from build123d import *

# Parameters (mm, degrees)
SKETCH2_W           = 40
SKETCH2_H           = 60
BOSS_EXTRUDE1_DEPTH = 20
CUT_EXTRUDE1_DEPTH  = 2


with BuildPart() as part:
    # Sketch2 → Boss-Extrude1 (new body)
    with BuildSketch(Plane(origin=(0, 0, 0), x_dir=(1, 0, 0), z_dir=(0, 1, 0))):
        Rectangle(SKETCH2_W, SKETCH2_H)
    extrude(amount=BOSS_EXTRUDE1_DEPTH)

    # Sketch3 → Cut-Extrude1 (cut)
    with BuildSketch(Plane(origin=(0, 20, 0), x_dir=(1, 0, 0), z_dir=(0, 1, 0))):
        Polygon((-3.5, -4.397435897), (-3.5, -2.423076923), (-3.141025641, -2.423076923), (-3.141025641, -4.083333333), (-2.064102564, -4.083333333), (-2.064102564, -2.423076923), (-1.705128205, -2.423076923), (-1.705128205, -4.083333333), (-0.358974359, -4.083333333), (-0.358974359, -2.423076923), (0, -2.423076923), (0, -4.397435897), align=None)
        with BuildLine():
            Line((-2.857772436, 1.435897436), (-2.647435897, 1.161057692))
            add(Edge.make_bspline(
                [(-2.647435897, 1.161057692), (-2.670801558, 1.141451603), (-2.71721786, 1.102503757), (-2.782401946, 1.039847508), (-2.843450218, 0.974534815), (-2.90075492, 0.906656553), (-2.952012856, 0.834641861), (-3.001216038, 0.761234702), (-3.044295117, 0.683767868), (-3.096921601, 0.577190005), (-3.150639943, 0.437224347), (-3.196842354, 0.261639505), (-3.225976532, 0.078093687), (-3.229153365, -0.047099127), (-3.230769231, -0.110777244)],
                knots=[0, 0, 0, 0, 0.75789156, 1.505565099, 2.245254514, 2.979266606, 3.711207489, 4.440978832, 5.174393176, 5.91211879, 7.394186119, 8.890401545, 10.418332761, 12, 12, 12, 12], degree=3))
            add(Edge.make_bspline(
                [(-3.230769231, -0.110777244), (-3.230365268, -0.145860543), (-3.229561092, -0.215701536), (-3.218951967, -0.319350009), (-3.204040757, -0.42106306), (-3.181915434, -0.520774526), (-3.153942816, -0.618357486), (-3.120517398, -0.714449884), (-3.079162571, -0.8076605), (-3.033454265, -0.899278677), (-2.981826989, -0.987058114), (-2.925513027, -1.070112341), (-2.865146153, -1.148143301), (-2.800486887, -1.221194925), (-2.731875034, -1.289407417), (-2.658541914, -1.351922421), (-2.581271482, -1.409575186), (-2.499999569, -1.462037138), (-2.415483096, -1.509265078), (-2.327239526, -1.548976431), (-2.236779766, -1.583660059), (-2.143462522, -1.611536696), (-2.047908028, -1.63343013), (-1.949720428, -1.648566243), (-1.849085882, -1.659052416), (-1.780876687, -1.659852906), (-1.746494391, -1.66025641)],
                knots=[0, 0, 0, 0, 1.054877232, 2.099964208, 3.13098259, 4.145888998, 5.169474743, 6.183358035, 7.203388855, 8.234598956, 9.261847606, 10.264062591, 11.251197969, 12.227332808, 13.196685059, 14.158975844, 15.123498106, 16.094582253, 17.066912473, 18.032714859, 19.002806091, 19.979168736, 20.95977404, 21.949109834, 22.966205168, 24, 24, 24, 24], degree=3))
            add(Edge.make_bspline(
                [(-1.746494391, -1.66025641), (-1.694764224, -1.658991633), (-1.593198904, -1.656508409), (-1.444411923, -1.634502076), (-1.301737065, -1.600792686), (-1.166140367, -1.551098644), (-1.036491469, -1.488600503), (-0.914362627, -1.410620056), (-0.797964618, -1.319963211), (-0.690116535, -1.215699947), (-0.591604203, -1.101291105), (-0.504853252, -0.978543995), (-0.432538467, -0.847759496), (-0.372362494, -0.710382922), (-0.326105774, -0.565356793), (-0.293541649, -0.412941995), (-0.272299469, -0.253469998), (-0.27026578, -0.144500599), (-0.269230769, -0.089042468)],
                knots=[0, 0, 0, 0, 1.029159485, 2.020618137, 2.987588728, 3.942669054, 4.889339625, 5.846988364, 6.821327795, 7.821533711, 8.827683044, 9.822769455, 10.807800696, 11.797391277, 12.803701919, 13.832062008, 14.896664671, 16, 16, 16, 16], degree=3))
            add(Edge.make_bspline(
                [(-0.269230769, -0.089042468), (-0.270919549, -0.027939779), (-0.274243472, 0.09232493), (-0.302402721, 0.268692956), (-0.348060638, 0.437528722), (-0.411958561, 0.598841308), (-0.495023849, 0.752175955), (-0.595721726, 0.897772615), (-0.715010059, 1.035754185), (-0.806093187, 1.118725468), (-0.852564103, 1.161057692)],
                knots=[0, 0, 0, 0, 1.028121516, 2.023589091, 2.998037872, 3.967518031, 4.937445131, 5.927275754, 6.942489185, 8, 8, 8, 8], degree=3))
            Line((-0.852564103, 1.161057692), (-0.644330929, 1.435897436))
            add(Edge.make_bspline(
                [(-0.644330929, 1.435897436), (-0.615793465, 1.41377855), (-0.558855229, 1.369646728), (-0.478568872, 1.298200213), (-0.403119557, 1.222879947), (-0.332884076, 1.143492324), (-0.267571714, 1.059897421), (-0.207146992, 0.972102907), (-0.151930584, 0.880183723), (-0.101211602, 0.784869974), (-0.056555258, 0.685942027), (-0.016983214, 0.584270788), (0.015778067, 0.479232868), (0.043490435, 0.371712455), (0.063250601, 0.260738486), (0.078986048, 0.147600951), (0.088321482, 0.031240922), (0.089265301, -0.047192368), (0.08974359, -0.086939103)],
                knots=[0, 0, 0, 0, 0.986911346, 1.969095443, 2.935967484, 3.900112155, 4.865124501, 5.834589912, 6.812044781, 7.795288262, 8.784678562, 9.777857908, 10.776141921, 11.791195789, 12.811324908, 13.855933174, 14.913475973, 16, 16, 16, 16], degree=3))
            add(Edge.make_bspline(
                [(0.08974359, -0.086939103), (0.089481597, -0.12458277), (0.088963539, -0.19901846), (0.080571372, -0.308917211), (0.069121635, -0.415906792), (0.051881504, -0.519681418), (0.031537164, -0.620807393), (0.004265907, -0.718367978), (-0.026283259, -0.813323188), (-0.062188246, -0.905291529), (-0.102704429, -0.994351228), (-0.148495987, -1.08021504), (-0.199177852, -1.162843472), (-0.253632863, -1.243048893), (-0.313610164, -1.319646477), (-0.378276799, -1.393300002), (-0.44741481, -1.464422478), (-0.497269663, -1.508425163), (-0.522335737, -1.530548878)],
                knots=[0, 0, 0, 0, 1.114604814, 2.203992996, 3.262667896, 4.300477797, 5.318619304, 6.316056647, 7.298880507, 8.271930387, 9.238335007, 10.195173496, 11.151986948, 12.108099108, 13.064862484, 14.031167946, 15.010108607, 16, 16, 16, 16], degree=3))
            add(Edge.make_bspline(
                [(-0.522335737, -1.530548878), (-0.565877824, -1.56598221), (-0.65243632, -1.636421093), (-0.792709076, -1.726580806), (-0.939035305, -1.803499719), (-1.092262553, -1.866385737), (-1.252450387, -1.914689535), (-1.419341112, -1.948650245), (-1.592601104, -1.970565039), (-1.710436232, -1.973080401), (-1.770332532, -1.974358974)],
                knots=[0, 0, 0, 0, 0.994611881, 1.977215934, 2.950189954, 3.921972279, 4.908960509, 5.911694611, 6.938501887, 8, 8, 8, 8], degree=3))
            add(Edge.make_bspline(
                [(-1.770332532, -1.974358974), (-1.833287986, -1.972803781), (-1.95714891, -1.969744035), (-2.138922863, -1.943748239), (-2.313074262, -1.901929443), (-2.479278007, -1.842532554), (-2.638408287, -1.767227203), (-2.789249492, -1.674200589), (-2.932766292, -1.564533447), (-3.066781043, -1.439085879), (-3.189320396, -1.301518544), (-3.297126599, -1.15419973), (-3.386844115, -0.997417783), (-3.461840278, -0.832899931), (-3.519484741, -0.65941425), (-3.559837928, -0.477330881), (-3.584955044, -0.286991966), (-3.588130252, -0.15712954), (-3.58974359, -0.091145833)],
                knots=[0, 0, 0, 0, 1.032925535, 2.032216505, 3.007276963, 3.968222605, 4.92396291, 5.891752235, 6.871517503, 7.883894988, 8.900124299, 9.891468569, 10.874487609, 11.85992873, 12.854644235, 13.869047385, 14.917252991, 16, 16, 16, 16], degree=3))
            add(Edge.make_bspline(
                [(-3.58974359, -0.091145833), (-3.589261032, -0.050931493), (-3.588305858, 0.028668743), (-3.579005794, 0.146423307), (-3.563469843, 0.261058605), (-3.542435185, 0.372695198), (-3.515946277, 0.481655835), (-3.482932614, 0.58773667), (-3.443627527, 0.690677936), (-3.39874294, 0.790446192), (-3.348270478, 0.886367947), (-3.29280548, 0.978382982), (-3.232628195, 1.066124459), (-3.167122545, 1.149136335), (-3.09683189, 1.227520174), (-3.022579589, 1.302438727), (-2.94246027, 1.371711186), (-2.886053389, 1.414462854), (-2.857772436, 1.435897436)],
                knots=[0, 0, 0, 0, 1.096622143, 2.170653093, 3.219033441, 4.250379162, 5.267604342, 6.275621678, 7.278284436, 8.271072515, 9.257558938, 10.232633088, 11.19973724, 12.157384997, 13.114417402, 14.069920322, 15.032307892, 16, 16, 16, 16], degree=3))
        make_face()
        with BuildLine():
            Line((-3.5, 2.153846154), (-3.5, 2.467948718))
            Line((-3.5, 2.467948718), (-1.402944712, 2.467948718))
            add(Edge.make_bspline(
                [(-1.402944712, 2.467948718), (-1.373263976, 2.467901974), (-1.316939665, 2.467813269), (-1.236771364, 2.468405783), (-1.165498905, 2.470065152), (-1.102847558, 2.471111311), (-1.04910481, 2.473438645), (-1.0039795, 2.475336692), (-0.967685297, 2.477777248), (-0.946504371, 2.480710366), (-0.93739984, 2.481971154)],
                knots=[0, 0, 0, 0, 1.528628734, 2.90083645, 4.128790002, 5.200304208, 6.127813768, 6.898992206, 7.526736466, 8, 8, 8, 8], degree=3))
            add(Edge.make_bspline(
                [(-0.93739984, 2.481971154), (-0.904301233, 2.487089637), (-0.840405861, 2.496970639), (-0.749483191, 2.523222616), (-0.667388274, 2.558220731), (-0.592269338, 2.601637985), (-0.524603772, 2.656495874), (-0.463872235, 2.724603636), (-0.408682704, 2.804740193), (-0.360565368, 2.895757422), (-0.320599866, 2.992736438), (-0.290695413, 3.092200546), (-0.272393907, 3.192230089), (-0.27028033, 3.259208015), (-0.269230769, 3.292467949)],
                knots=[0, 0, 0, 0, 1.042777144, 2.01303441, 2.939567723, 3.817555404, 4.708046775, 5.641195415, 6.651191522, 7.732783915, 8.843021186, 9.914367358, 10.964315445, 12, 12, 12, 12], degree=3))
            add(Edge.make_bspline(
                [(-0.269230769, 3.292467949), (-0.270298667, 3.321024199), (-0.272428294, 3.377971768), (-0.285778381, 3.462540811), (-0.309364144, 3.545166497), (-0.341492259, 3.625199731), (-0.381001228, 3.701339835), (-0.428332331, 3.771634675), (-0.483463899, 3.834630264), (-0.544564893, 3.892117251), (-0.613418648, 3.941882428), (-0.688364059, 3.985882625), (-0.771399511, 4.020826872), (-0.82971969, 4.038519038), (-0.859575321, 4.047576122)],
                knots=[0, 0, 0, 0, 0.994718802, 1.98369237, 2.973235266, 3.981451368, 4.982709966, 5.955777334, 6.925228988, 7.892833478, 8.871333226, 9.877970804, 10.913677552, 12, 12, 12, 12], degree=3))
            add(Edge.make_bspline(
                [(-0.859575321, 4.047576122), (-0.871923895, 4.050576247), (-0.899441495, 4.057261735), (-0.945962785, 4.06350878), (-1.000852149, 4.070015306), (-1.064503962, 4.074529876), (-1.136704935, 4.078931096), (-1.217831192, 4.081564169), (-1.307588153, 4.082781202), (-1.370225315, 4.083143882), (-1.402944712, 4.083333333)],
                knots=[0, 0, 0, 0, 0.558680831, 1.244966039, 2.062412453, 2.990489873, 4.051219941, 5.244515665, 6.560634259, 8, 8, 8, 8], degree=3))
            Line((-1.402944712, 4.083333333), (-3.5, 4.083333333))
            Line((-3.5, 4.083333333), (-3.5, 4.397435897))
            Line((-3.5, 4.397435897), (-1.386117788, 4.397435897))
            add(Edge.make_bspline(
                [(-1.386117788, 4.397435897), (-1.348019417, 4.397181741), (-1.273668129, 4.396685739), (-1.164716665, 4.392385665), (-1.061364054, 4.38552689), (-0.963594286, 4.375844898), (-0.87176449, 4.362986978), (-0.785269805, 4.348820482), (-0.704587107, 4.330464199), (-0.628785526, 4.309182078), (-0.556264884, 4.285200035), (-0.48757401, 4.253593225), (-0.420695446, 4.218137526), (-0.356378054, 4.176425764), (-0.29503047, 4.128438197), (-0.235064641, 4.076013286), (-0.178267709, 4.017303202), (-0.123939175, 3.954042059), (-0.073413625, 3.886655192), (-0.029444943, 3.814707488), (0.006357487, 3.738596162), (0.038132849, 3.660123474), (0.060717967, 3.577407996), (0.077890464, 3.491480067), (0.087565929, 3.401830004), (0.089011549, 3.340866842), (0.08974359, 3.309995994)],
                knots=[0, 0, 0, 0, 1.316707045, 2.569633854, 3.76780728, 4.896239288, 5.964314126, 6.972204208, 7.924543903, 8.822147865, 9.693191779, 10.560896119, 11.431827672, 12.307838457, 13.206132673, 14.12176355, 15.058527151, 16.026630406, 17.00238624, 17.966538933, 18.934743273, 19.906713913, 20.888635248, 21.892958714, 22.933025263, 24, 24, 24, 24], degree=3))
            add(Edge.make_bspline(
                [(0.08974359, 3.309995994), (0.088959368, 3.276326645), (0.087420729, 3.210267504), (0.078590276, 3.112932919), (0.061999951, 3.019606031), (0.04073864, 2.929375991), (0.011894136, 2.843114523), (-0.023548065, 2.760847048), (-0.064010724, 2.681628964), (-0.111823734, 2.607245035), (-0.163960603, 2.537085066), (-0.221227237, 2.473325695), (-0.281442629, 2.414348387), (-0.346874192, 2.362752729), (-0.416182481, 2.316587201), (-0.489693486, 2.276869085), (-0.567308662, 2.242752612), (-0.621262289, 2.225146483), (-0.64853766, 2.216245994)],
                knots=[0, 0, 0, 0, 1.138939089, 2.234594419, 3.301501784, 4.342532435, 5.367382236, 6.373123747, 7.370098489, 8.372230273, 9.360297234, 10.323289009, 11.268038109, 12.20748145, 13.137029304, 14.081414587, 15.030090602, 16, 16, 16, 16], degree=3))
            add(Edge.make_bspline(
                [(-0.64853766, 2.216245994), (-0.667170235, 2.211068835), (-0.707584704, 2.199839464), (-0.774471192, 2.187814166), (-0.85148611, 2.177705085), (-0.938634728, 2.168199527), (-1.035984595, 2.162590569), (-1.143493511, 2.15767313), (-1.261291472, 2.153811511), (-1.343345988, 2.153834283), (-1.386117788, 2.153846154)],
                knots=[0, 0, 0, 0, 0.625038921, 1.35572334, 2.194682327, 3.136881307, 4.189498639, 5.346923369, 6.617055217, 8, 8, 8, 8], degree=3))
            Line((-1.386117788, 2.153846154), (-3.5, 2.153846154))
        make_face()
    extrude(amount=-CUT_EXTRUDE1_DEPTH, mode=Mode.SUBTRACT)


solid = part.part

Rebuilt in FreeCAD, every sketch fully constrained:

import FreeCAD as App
import Part
import Sketcher


def add_polygon(sketch, points):
    """Adds a closed chain of lines whose ends are joined by coincident constraints."""
    first, n = sketch.GeometryCount, len(points)
    for a, b in zip(points, points[1:] + points[:1]):
        sketch.addGeometry(Part.LineSegment(App.Vector(*a, 0), App.Vector(*b, 0)), False)
    for i in range(n):
        sketch.addConstraint(Sketcher.Constraint("Coincident", first + i, 2, first + (i + 1) % n, 1))

doc = App.newDocument("Part")
body = doc.addObject("PartDesign::Body", "Body")

# Sketch on XZ plane
sketch1 = body.newObject("Sketcher::SketchObject", "Sketch")
sketch1.AttachmentSupport = (doc.getObject("XZ_Plane"), [""])
sketch1.MapMode = "FlatFace"
add_polygon(sketch1, [(-20, -30), (-20, 30), (20, 30), (20, -30)])  # lines 0-3
sketch1.addConstraint([
    Sketcher.Constraint("Vertical", 0),
    Sketcher.Constraint("Horizontal", 1),
    Sketcher.Constraint("Vertical", 2),
    Sketcher.Constraint("Horizontal", 3),
    Sketcher.Constraint("Symmetric", 0, 2, 2, 2, -1, 1),
    Sketcher.Constraint("DistanceX", 1, 1, 1, 2, 40.0),
    Sketcher.Constraint("DistanceY", 0, 1, 0, 2, 60.0),
])
pad1 = body.newObject("PartDesign::Pad", "Pad")
pad1.Profile = sketch1
pad1.Length = 20
pad1.Reversed = True

# Sketch on XZ plane
sketch2 = body.newObject("Sketcher::SketchObject", "Sketch001")
sketch2.AttachmentSupport = (doc.getObject("XZ_Plane"), [""])
sketch2.MapMode = "FlatFace"
sketch2.AttachmentOffset = App.Placement(App.Vector(0, 0, -20), App.Rotation())
add_polygon(sketch2, [(-3.5, 2.423077), (-3.5, 4.397436), (0, 4.397436), (0, 2.423077), (-0.358974, 2.423077), (-0.358974, 4.083333), (-1.705128, 4.083333), (-1.705128, 2.423077), (-2.064103, 2.423077), (-2.064103, 4.083333), (-3.141026, 4.083333), (-3.141026, 2.423077)])  # lines 0-11
sketch2.addGeometry(Part.LineSegment(App.Vector(-2.647436, -1.161058, 0), App.Vector(-2.857772, -1.435897, 0)), False)  # 12
sketch2.addGeometry(Part.BSplineCurve([App.Vector(-3.589744, 0.091146, 0), App.Vector(-3.589261, 0.050931, 0), App.Vector(-3.588306, -0.028669, 0), App.Vector(-3.579006, -0.146423, 0), App.Vector(-3.56347, -0.261059, 0), App.Vector(-3.542435, -0.372695, 0), App.Vector(-3.515946, -0.481656, 0), App.Vector(-3.482933, -0.587737, 0), App.Vector(-3.443628, -0.690678, 0), App.Vector(-3.398743, -0.790446, 0), App.Vector(-3.34827, -0.886368, 0), App.Vector(-3.292805, -0.978383, 0), App.Vector(-3.232628, -1.066124, 0), App.Vector(-3.167123, -1.149136, 0), App.Vector(-3.096832, -1.22752, 0), App.Vector(-3.02258, -1.302439, 0), App.Vector(-2.94246, -1.371711, 0), App.Vector(-2.886053, -1.414463, 0), App.Vector(-2.857772, -1.435897, 0)], [4, 1, 1, 1, 1, 1, 1, 1, 1, 1, 1, 1, 1, 1, 1, 1, 4], [0, 1.096622143, 2.170653093, 3.219033441, 4.250379162, 5.267604342, 6.275621678, 7.278284436, 8.271072515, 9.257558938, 10.232633088, 11.19973724, 12.157384997, 13.114417402, 14.069920322, 15.032307892, 16], False, 3, [1, 1, 1, 1, 1, 1, 1, 1, 1, 1, 1, 1, 1, 1, 1, 1, 1, 1, 1], False), False)  # 13
sketch2.addGeometry(Part.BSplineCurve([App.Vector(-1.770333, 1.974359, 0), App.Vector(-1.833288, 1.972804, 0), App.Vector(-1.957149, 1.969744, 0), App.Vector(-2.138923, 1.943748, 0), App.Vector(-2.313074, 1.901929, 0), App.Vector(-2.479278, 1.842533, 0), App.Vector(-2.638408, 1.767227, 0), App.Vector(-2.789249, 1.674201, 0), App.Vector(-2.932766, 1.564533, 0), App.Vector(-3.066781, 1.439086, 0), App.Vector(-3.18932, 1.301519, 0), App.Vector(-3.297127, 1.1542, 0), App.Vector(-3.386844, 0.997418, 0), App.Vector(-3.46184, 0.8329, 0), App.Vector(-3.519485, 0.659414, 0), App.Vector(-3.559838, 0.477331, 0), App.Vector(-3.584955, 0.286992, 0), App.Vector(-3.58813, 0.15713, 0), App.Vector(-3.589744, 0.091146, 0)], [4, 1, 1, 1, 1, 1, 1, 1, 1, 1, 1, 1, 1, 1, 1, 1, 4], [0, 1.032925535, 2.032216505, 3.007276963, 3.968222605, 4.92396291, 5.891752235, 6.871517503, 7.883894988, 8.900124299, 9.891468569, 10.874487609, 11.85992873, 12.854644235, 13.869047385, 14.917252991, 16], False, 3, [1, 1, 1, 1, 1, 1, 1, 1, 1, 1, 1, 1, 1, 1, 1, 1, 1, 1, 1], False), False)  # 14
sketch2.addGeometry(Part.BSplineCurve([App.Vector(-0.522336, 1.530549, 0), App.Vector(-0.565878, 1.565982, 0), App.Vector(-0.652436, 1.636421, 0), App.Vector(-0.792709, 1.726581, 0), App.Vector(-0.939035, 1.8035, 0), App.Vector(-1.092263, 1.866386, 0), App.Vector(-1.25245, 1.91469, 0), App.Vector(-1.419341, 1.94865, 0), App.Vector(-1.592601, 1.970565, 0), App.Vector(-1.710436, 1.97308, 0), App.Vector(-1.770333, 1.974359, 0)], [4, 1, 1, 1, 1, 1, 1, 1, 4], [0, 0.994611881, 1.977215934, 2.950189954, 3.921972279, 4.908960509, 5.911694611, 6.938501887, 8], False, 3, [1, 1, 1, 1, 1, 1, 1, 1, 1, 1, 1], False), False)  # 15
sketch2.addGeometry(Part.BSplineCurve([App.Vector(0.089744, 0.086939, 0), App.Vector(0.089482, 0.124583, 0), App.Vector(0.088964, 0.199018, 0), App.Vector(0.080571, 0.308917, 0), App.Vector(0.069122, 0.415907, 0), App.Vector(0.051882, 0.519681, 0), App.Vector(0.031537, 0.620807, 0), App.Vector(0.004266, 0.718368, 0), App.Vector(-0.026283, 0.813323, 0), App.Vector(-0.062188, 0.905292, 0), App.Vector(-0.102704, 0.994351, 0), App.Vector(-0.148496, 1.080215, 0), App.Vector(-0.199178, 1.162843, 0), App.Vector(-0.253633, 1.243049, 0), App.Vector(-0.31361, 1.319646, 0), App.Vector(-0.378277, 1.3933, 0), App.Vector(-0.447415, 1.464422, 0), App.Vector(-0.49727, 1.508425, 0), App.Vector(-0.522336, 1.530549, 0)], [4, 1, 1, 1, 1, 1, 1, 1, 1, 1, 1, 1, 1, 1, 1, 1, 4], [0, 1.114604814, 2.203992996, 3.262667896, 4.300477797, 5.318619304, 6.316056647, 7.298880507, 8.271930387, 9.238335007, 10.195173496, 11.151986948, 12.108099108, 13.064862484, 14.031167946, 15.010108607, 16], False, 3, [1, 1, 1, 1, 1, 1, 1, 1, 1, 1, 1, 1, 1, 1, 1, 1, 1, 1, 1], False), False)  # 16
sketch2.addGeometry(Part.BSplineCurve([App.Vector(-0.644331, -1.435897, 0), App.Vector(-0.615793, -1.413779, 0), App.Vector(-0.558855, -1.369647, 0), App.Vector(-0.478569, -1.2982, 0), App.Vector(-0.40312, -1.22288, 0), App.Vector(-0.332884, -1.143492, 0), App.Vector(-0.267572, -1.059897, 0), App.Vector(-0.207147, -0.972103, 0), App.Vector(-0.151931, -0.880184, 0), App.Vector(-0.101212, -0.78487, 0), App.Vector(-0.056555, -0.685942, 0), App.Vector(-0.016983, -0.584271, 0), App.Vector(0.015778, -0.479233, 0), App.Vector(0.04349, -0.371712, 0), App.Vector(0.063251, -0.260738, 0), App.Vector(0.078986, -0.147601, 0), App.Vector(0.088321, -0.031241, 0), App.Vector(0.089265, 0.047192, 0), App.Vector(0.089744, 0.086939, 0)], [4, 1, 1, 1, 1, 1, 1, 1, 1, 1, 1, 1, 1, 1, 1, 1, 4], [0, 0.986911346, 1.969095443, 2.935967484, 3.900112155, 4.865124501, 5.834589912, 6.812044781, 7.795288262, 8.784678562, 9.777857908, 10.776141921, 11.791195789, 12.811324908, 13.855933174, 14.913475973, 16], False, 3, [1, 1, 1, 1, 1, 1, 1, 1, 1, 1, 1, 1, 1, 1, 1, 1, 1, 1, 1], False), False)  # 17
sketch2.addGeometry(Part.LineSegment(App.Vector(-0.644331, -1.435897, 0), App.Vector(-0.852564, -1.161058, 0)), False)  # 18
sketch2.addGeometry(Part.BSplineCurve([App.Vector(-0.269231, 0.089042, 0), App.Vector(-0.27092, 0.02794, 0), App.Vector(-0.274243, -0.092325, 0), App.Vector(-0.302403, -0.268693, 0), App.Vector(-0.348061, -0.437529, 0), App.Vector(-0.411959, -0.598841, 0), App.Vector(-0.495024, -0.752176, 0), App.Vector(-0.595722, -0.897773, 0), App.Vector(-0.71501, -1.035754, 0), App.Vector(-0.806093, -1.118725, 0), App.Vector(-0.852564, -1.161058, 0)], [4, 1, 1, 1, 1, 1, 1, 1, 4], [0, 1.028121516, 2.023589091, 2.998037872, 3.967518031, 4.937445131, 5.927275754, 6.942489185, 8], False, 3, [1, 1, 1, 1, 1, 1, 1, 1, 1, 1, 1], False), False)  # 19
sketch2.addGeometry(Part.BSplineCurve([App.Vector(-1.746494, 1.660256, 0), App.Vector(-1.694764, 1.658992, 0), App.Vector(-1.593199, 1.656508, 0), App.Vector(-1.444412, 1.634502, 0), App.Vector(-1.301737, 1.600793, 0), App.Vector(-1.16614, 1.551099, 0), App.Vector(-1.036491, 1.488601, 0), App.Vector(-0.914363, 1.41062, 0), App.Vector(-0.797965, 1.319963, 0), App.Vector(-0.690117, 1.2157, 0), App.Vector(-0.591604, 1.101291, 0), App.Vector(-0.504853, 0.978544, 0), App.Vector(-0.432538, 0.847759, 0), App.Vector(-0.372362, 0.710383, 0), App.Vector(-0.326106, 0.565357, 0), App.Vector(-0.293542, 0.412942, 0), App.Vector(-0.272299, 0.25347, 0), App.Vector(-0.270266, 0.144501, 0), App.Vector(-0.269231, 0.089042, 0)], [4, 1, 1, 1, 1, 1, 1, 1, 1, 1, 1, 1, 1, 1, 1, 1, 4], [0, 1.029159485, 2.020618137, 2.987588728, 3.942669054, 4.889339625, 5.846988364, 6.821327795, 7.821533711, 8.827683044, 9.822769455, 10.807800696, 11.797391277, 12.803701919, 13.832062008, 14.896664671, 16], False, 3, [1, 1, 1, 1, 1, 1, 1, 1, 1, 1, 1, 1, 1, 1, 1, 1, 1, 1, 1], False), False)  # 20
sketch2.addGeometry(Part.BSplineCurve([App.Vector(-3.230769, 0.110777, 0), App.Vector(-3.230365, 0.145861, 0), App.Vector(-3.229561, 0.215702, 0), App.Vector(-3.218952, 0.31935, 0), App.Vector(-3.204041, 0.421063, 0), App.Vector(-3.181915, 0.520775, 0), App.Vector(-3.153943, 0.618357, 0), App.Vector(-3.120517, 0.71445, 0), App.Vector(-3.079163, 0.807661, 0), App.Vector(-3.033454, 0.899279, 0), App.Vector(-2.981827, 0.987058, 0), App.Vector(-2.925513, 1.070112, 0), App.Vector(-2.865146, 1.148143, 0), App.Vector(-2.800487, 1.221195, 0), App.Vector(-2.731875, 1.289407, 0), App.Vector(-2.658542, 1.351922, 0), App.Vector(-2.581271, 1.409575, 0), App.Vector(-2.5, 1.462037, 0), App.Vector(-2.415483, 1.509265, 0), App.Vector(-2.32724, 1.548976, 0), App.Vector(-2.23678, 1.58366, 0), App.Vector(-2.143463, 1.611537, 0), App.Vector(-2.047908, 1.63343, 0), App.Vector(-1.94972, 1.648566, 0), App.Vector(-1.849086, 1.659052, 0), App.Vector(-1.780877, 1.659853, 0), App.Vector(-1.746494, 1.660256, 0)], [4, 1, 1, 1, 1, 1, 1, 1, 1, 1, 1, 1, 1, 1, 1, 1, 1, 1, 1, 1, 1, 1, 1, 1, 4], [0, 1.054877232, 2.099964208, 3.13098259, 4.145888998, 5.169474743, 6.183358035, 7.203388855, 8.234598956, 9.261847606, 10.264062591, 11.251197969, 12.227332808, 13.196685059, 14.158975844, 15.123498106, 16.094582253, 17.066912473, 18.032714859, 19.002806091, 19.979168736, 20.95977404, 21.949109834, 22.966205168, 24], False, 3, [1, 1, 1, 1, 1, 1, 1, 1, 1, 1, 1, 1, 1, 1, 1, 1, 1, 1, 1, 1, 1, 1, 1, 1, 1, 1, 1], False), False)  # 21
sketch2.addGeometry(Part.BSplineCurve([App.Vector(-2.647436, -1.161058, 0), App.Vector(-2.670802, -1.141452, 0), App.Vector(-2.717218, -1.102504, 0), App.Vector(-2.782402, -1.039848, 0), App.Vector(-2.84345, -0.974535, 0), App.Vector(-2.900755, -0.906657, 0), App.Vector(-2.952013, -0.834642, 0), App.Vector(-3.001216, -0.761235, 0), App.Vector(-3.044295, -0.683768, 0), App.Vector(-3.096922, -0.57719, 0), App.Vector(-3.15064, -0.437224, 0), App.Vector(-3.196842, -0.26164, 0), App.Vector(-3.225977, -0.078094, 0), App.Vector(-3.229153, 0.047099, 0), App.Vector(-3.230769, 0.110777, 0)], [4, 1, 1, 1, 1, 1, 1, 1, 1, 1, 1, 1, 4], [0, 0.75789156, 1.505565099, 2.245254514, 2.979266606, 3.711207489, 4.440978832, 5.174393176, 5.91211879, 7.394186119, 8.890401545, 10.418332761, 12], False, 3, [1, 1, 1, 1, 1, 1, 1, 1, 1, 1, 1, 1, 1, 1, 1], False), False)  # 22
sketch2.addGeometry(Part.LineSegment(App.Vector(-3.5, -2.467949, 0), App.Vector(-3.5, -2.153846, 0)), False)  # 23
sketch2.addGeometry(Part.LineSegment(App.Vector(-3.5, -2.153846, 0), App.Vector(-1.386118, -2.153846, 0)), False)  # 24
sketch2.addGeometry(Part.BSplineCurve([App.Vector(-0.648538, -2.216246, 0), App.Vector(-0.66717, -2.211069, 0), App.Vector(-0.707585, -2.199839, 0), App.Vector(-0.774471, -2.187814, 0), App.Vector(-0.851486, -2.177705, 0), App.Vector(-0.938635, -2.1682, 0), App.Vector(-1.035985, -2.162591, 0), App.Vector(-1.143494, -2.157673, 0), App.Vector(-1.261291, -2.153812, 0), App.Vector(-1.343346, -2.153834, 0), App.Vector(-1.386118, -2.153846, 0)], [4, 1, 1, 1, 1, 1, 1, 1, 4], [0, 0.625038921, 1.35572334, 2.194682327, 3.136881307, 4.189498639, 5.346923369, 6.617055217, 8], False, 3, [1, 1, 1, 1, 1, 1, 1, 1, 1, 1, 1], False), False)  # 25
sketch2.addGeometry(Part.BSplineCurve([App.Vector(0.089744, -3.309996, 0), App.Vector(0.088959, -3.276327, 0), App.Vector(0.087421, -3.210268, 0), App.Vector(0.07859, -3.112933, 0), App.Vector(0.062, -3.019606, 0), App.Vector(0.040739, -2.929376, 0), App.Vector(0.011894, -2.843115, 0), App.Vector(-0.023548, -2.760847, 0), App.Vector(-0.064011, -2.681629, 0), App.Vector(-0.111824, -2.607245, 0), App.Vector(-0.163961, -2.537085, 0), App.Vector(-0.221227, -2.473326, 0), App.Vector(-0.281443, -2.414348, 0), App.Vector(-0.346874, -2.362753, 0), App.Vector(-0.416182, -2.316587, 0), App.Vector(-0.489693, -2.276869, 0), App.Vector(-0.567309, -2.242753, 0), App.Vector(-0.621262, -2.225146, 0), App.Vector(-0.648538, -2.216246, 0)], [4, 1, 1, 1, 1, 1, 1, 1, 1, 1, 1, 1, 1, 1, 1, 1, 4], [0, 1.138939089, 2.234594419, 3.301501784, 4.342532435, 5.367382236, 6.373123747, 7.370098489, 8.372230273, 9.360297234, 10.323289009, 11.268038109, 12.20748145, 13.137029304, 14.081414587, 15.030090602, 16], False, 3, [1, 1, 1, 1, 1, 1, 1, 1, 1, 1, 1, 1, 1, 1, 1, 1, 1, 1, 1], False), False)  # 26
sketch2.addGeometry(Part.BSplineCurve([App.Vector(-1.386118, -4.397436, 0), App.Vector(-1.348019, -4.397182, 0), App.Vector(-1.273668, -4.396686, 0), App.Vector(-1.164717, -4.392386, 0), App.Vector(-1.061364, -4.385527, 0), App.Vector(-0.963594, -4.375845, 0), App.Vector(-0.871764, -4.362987, 0), App.Vector(-0.78527, -4.34882, 0), App.Vector(-0.704587, -4.330464, 0), App.Vector(-0.628786, -4.309182, 0), App.Vector(-0.556265, -4.2852, 0), App.Vector(-0.487574, -4.253593, 0), App.Vector(-0.420695, -4.218138, 0), App.Vector(-0.356378, -4.176426, 0), App.Vector(-0.29503, -4.128438, 0), App.Vector(-0.235065, -4.076013, 0), App.Vector(-0.178268, -4.017303, 0), App.Vector(-0.123939, -3.954042, 0), App.Vector(-0.073414, -3.886655, 0), App.Vector(-0.029445, -3.814707, 0), App.Vector(0.006357, -3.738596, 0), App.Vector(0.038133, -3.660123, 0), App.Vector(0.060718, -3.577408, 0), App.Vector(0.07789, -3.49148, 0), App.Vector(0.087566, -3.40183, 0), App.Vector(0.089012, -3.340867, 0), App.Vector(0.089744, -3.309996, 0)], [4, 1, 1, 1, 1, 1, 1, 1, 1, 1, 1, 1, 1, 1, 1, 1, 1, 1, 1, 1, 1, 1, 1, 1, 4], [0, 1.316707045, 2.569633854, 3.76780728, 4.896239288, 5.964314126, 6.972204208, 7.924543903, 8.822147865, 9.693191779, 10.560896119, 11.431827672, 12.307838457, 13.206132673, 14.12176355, 15.058527151, 16.026630406, 17.00238624, 17.966538933, 18.934743273, 19.906713913, 20.888635248, 21.892958714, 22.933025263, 24], False, 3, [1, 1, 1, 1, 1, 1, 1, 1, 1, 1, 1, 1, 1, 1, 1, 1, 1, 1, 1, 1, 1, 1, 1, 1, 1, 1, 1], False), False)  # 27
sketch2.addGeometry(Part.LineSegment(App.Vector(-1.386118, -4.397436, 0), App.Vector(-3.5, -4.397436, 0)), False)  # 28
sketch2.addGeometry(Part.LineSegment(App.Vector(-3.5, -4.397436, 0), App.Vector(-3.5, -4.083333, 0)), False)  # 29
sketch2.addGeometry(Part.LineSegment(App.Vector(-3.5, -4.083333, 0), App.Vector(-1.402945, -4.083333, 0)), False)  # 30
sketch2.addGeometry(Part.BSplineCurve([App.Vector(-0.859575, -4.047576, 0), App.Vector(-0.871924, -4.050576, 0), App.Vector(-0.899441, -4.057262, 0), App.Vector(-0.945963, -4.063509, 0), App.Vector(-1.000852, -4.070015, 0), App.Vector(-1.064504, -4.07453, 0), App.Vector(-1.136705, -4.078931, 0), App.Vector(-1.217831, -4.081564, 0), App.Vector(-1.307588, -4.082781, 0), App.Vector(-1.370225, -4.083144, 0), App.Vector(-1.402945, -4.083333, 0)], [4, 1, 1, 1, 1, 1, 1, 1, 4], [0, 0.558680831, 1.244966039, 2.062412453, 2.990489873, 4.051219941, 5.244515665, 6.560634259, 8], False, 3, [1, 1, 1, 1, 1, 1, 1, 1, 1, 1, 1], False), False)  # 31
sketch2.addGeometry(Part.BSplineCurve([App.Vector(-0.269231, -3.292468, 0), App.Vector(-0.270299, -3.321024, 0), App.Vector(-0.272428, -3.377972, 0), App.Vector(-0.285778, -3.462541, 0), App.Vector(-0.309364, -3.545166, 0), App.Vector(-0.341492, -3.6252, 0), App.Vector(-0.381001, -3.70134, 0), App.Vector(-0.428332, -3.771635, 0), App.Vector(-0.483464, -3.83463, 0), App.Vector(-0.544565, -3.892117, 0), App.Vector(-0.613419, -3.941882, 0), App.Vector(-0.688364, -3.985883, 0), App.Vector(-0.7714, -4.020827, 0), App.Vector(-0.82972, -4.038519, 0), App.Vector(-0.859575, -4.047576, 0)], [4, 1, 1, 1, 1, 1, 1, 1, 1, 1, 1, 1, 4], [0, 0.994718802, 1.98369237, 2.973235266, 3.981451368, 4.982709966, 5.955777334, 6.925228988, 7.892833478, 8.871333226, 9.877970804, 10.913677552, 12], False, 3, [1, 1, 1, 1, 1, 1, 1, 1, 1, 1, 1, 1, 1, 1, 1], False), False)  # 32
sketch2.addGeometry(Part.BSplineCurve([App.Vector(-0.9374, -2.481971, 0), App.Vector(-0.904301, -2.48709, 0), App.Vector(-0.840406, -2.496971, 0), App.Vector(-0.749483, -2.523223, 0), App.Vector(-0.667388, -2.558221, 0), App.Vector(-0.592269, -2.601638, 0), App.Vector(-0.524604, -2.656496, 0), App.Vector(-0.463872, -2.724604, 0), App.Vector(-0.408683, -2.80474, 0), App.Vector(-0.360565, -2.895757, 0), App.Vector(-0.3206, -2.992736, 0), App.Vector(-0.290695, -3.092201, 0), App.Vector(-0.272394, -3.19223, 0), App.Vector(-0.27028, -3.259208, 0), App.Vector(-0.269231, -3.292468, 0)], [4, 1, 1, 1, 1, 1, 1, 1, 1, 1, 1, 1, 4], [0, 1.042777144, 2.01303441, 2.939567723, 3.817555404, 4.708046775, 5.641195415, 6.651191522, 7.732783915, 8.843021186, 9.914367358, 10.964315445, 12], False, 3, [1, 1, 1, 1, 1, 1, 1, 1, 1, 1, 1, 1, 1, 1, 1], False), False)  # 33
sketch2.addGeometry(Part.BSplineCurve([App.Vector(-1.402945, -2.467949, 0), App.Vector(-1.373264, -2.467902, 0), App.Vector(-1.31694, -2.467813, 0), App.Vector(-1.236771, -2.468406, 0), App.Vector(-1.165499, -2.470065, 0), App.Vector(-1.102848, -2.471111, 0), App.Vector(-1.049105, -2.473439, 0), App.Vector(-1.00398, -2.475337, 0), App.Vector(-0.967685, -2.477777, 0), App.Vector(-0.946504, -2.48071, 0), App.Vector(-0.9374, -2.481971, 0)], [4, 1, 1, 1, 1, 1, 1, 1, 4], [0, 1.528628734, 2.90083645, 4.128790002, 5.200304208, 6.127813768, 6.898992206, 7.526736466, 8], False, 3, [1, 1, 1, 1, 1, 1, 1, 1, 1, 1, 1], False), False)  # 34
sketch2.addGeometry(Part.LineSegment(App.Vector(-1.402945, -2.467949, 0), App.Vector(-3.5, -2.467949, 0)), False)  # 35
sketch2.addConstraint([
    Sketcher.Constraint("Block", 13),
    Sketcher.Constraint("Block", 14),
    Sketcher.Constraint("Block", 15),
    Sketcher.Constraint("Block", 16),
    Sketcher.Constraint("Block", 17),
    Sketcher.Constraint("Block", 19),
    Sketcher.Constraint("Block", 20),
    Sketcher.Constraint("Block", 21),
    Sketcher.Constraint("Block", 22),
    Sketcher.Constraint("Block", 25),
    Sketcher.Constraint("Block", 26),
    Sketcher.Constraint("Block", 27),
    Sketcher.Constraint("Block", 31),
    Sketcher.Constraint("Block", 32),
    Sketcher.Constraint("Block", 33),
    Sketcher.Constraint("Block", 34),
    Sketcher.Constraint("Coincident", 12, 2, 13, 2),
    Sketcher.Constraint("Coincident", 17, 1, 18, 1),
    Sketcher.Constraint("Coincident", 18, 2, 19, 2),
    Sketcher.Constraint("Coincident", 22, 1, 12, 1),
    Sketcher.Constraint("Coincident", 23, 2, 24, 1),
    Sketcher.Constraint("Coincident", 24, 2, 25, 2),
    Sketcher.Constraint("Coincident", 27, 1, 28, 1),
    Sketcher.Constraint("Coincident", 28, 2, 29, 1),
    Sketcher.Constraint("Coincident", 29, 2, 30, 1),
    Sketcher.Constraint("Coincident", 30, 2, 31, 2),
    Sketcher.Constraint("Coincident", 34, 1, 35, 1),
    Sketcher.Constraint("Coincident", 35, 2, 23, 1),
    Sketcher.Constraint("Vertical", 0),
    Sketcher.Constraint("Horizontal", 1),
    Sketcher.Constraint("Vertical", 2),
    Sketcher.Constraint("Horizontal", 3),
    Sketcher.Constraint("Vertical", 4),
    Sketcher.Constraint("Horizontal", 5),
    Sketcher.Constraint("Vertical", 6),
    Sketcher.Constraint("Horizontal", 7),
    Sketcher.Constraint("Vertical", 8),
    Sketcher.Constraint("Horizontal", 9),
    Sketcher.Constraint("Vertical", 10),
    Sketcher.Constraint("Horizontal", 11),
    Sketcher.Constraint("Vertical", 23),
    Sketcher.Constraint("Horizontal", 24),
    Sketcher.Constraint("Horizontal", 28),
    Sketcher.Constraint("Vertical", 29),
    Sketcher.Constraint("Horizontal", 30),
    Sketcher.Constraint("Horizontal", 35),
    Sketcher.Constraint("Symmetric", 0, 2, 28, 2, -1),
    Sketcher.Constraint("PointOnObject", 1, 2, -2),
    Sketcher.Constraint("Horizontal", 3, 2, 6, 2),
    Sketcher.Constraint("Horizontal", 5, 2, 8, 2),
    Sketcher.Constraint("Horizontal", 7, 2, 10, 2),
    Sketcher.Constraint("Vertical", 11, 2, 23, 2),
    Sketcher.Constraint("Equal", 3, 7),
    Sketcher.Constraint("Equal", 7, 11),
    Sketcher.Constraint("DistanceX", 1, 1, 1, 2, 3.5),
    Sketcher.Constraint("DistanceY", 0, 1, 0, 2, 1.974359),
    Sketcher.Constraint("DistanceX", 12, 2, 3, 2, 2.498798),
    Sketcher.Constraint("DistanceX", 5, 2, 5, 1, 1.346154),
    Sketcher.Constraint("DistanceY", 4, 1, 4, 2, 1.660256),
])
pocket1 = body.newObject("PartDesign::Pocket", "Pocket")
pocket1.Profile = sketch2
pocket1.Length = 2
pocket1.Reversed = True

doc.recompute()
